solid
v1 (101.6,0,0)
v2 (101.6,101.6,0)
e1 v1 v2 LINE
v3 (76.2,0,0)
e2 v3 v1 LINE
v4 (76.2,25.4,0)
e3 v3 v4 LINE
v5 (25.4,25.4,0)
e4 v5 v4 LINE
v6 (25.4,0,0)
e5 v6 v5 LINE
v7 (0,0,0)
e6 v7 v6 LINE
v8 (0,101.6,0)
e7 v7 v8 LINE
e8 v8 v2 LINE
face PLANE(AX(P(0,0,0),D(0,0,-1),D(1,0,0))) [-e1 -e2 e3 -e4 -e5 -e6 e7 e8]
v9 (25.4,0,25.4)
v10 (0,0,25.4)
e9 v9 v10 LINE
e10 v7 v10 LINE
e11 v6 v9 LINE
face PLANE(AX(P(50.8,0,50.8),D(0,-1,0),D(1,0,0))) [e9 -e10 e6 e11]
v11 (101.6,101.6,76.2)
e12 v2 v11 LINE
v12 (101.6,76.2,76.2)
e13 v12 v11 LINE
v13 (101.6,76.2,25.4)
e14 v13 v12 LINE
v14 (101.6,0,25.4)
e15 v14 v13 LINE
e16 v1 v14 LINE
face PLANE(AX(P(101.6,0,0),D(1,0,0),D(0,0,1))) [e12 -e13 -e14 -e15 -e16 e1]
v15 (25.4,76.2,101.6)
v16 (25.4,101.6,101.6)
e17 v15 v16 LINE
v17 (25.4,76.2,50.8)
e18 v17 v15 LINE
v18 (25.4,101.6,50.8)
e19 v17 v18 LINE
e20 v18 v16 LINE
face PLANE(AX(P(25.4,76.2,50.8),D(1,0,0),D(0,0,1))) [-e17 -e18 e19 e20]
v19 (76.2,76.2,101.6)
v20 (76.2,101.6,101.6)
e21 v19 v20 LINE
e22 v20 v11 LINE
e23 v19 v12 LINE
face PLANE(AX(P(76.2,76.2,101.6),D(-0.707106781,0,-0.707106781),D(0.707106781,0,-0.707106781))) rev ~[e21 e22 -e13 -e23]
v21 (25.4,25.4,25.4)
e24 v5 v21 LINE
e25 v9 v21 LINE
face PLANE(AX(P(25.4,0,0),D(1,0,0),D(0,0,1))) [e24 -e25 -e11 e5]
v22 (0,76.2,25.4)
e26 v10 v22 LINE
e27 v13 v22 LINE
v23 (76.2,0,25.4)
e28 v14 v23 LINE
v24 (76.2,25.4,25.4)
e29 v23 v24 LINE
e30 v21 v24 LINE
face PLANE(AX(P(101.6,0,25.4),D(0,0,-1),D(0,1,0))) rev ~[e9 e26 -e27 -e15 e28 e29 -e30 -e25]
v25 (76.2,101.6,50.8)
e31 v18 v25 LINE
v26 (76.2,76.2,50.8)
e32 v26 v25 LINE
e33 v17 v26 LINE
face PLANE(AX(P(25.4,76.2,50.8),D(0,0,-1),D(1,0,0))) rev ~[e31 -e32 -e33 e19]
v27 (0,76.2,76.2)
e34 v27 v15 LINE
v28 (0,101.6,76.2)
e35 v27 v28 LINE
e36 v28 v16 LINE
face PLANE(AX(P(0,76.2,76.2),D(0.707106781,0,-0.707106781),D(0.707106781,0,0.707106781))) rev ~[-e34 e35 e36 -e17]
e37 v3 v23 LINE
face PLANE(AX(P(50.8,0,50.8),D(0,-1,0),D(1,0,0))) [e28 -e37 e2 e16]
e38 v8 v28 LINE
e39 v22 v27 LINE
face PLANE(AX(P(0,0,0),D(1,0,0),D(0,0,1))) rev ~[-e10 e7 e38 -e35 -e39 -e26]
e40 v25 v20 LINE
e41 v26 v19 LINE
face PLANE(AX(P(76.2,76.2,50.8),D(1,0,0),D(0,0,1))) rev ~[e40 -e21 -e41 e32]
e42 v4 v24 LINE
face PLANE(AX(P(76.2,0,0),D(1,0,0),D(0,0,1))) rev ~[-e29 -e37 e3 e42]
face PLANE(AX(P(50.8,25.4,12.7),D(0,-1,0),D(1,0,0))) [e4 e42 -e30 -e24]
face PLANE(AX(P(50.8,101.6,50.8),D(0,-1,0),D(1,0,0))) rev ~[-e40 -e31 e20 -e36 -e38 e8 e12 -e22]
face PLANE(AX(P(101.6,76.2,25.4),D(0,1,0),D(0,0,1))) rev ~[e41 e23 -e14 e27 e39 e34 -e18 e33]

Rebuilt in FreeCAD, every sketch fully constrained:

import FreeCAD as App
import Part
import Sketcher
Q = App.Units.Quantity

doc = App.newDocument("Part")
body = doc.addObject("PartDesign::Body", "Body")

# Sketch on XZ plane
sketch1 = body.newObject("Sketcher::SketchObject", "Sketch")
sketch1.AttachmentSupport = (doc.getObject("XZ_Plane"), [""])
sketch1.MapMode = "FlatFace"
sketch1.addGeometry(Part.LineSegment(App.Vector(0, 102, 0), App.Vector(0, 0, 0)), False)
sketch1.addGeometry(Part.LineSegment(App.Vector(0, 0, 0), App.Vector(102, 0, 0)), False)
sketch1.addGeometry(Part.LineSegment(App.Vector(102, 0, 0), App.Vector(102, 102, 0)), False)
sketch1.addGeometry(Part.LineSegment(App.Vector(102, 102, 0), App.Vector(0, 102, 0)), False)
sketch1.addConstraint(Sketcher.Constraint("Coincident", 0, 2, 1, 1))
sketch1.addConstraint(Sketcher.Constraint("Coincident", 1, 2, 2, 1))
sketch1.addConstraint(Sketcher.Constraint("Coincident", 2, 2, 3, 1))
sketch1.addConstraint(Sketcher.Constraint("Coincident", 3, 2, 0, 1))
sketch1.addConstraint(Sketcher.Constraint("Vertical", 0))
sketch1.addConstraint(Sketcher.Constraint("Horizontal", 1))
sketch1.addConstraint(Sketcher.Constraint("Vertical", 2))
sketch1.addConstraint(Sketcher.Constraint("Horizontal", 3))
sketch1.addConstraint(Sketcher.Constraint("Coincident", 0, 2, -1, 1))
sketch1.addConstraint(Sketcher.Constraint("Equal", 3, 0))
sketch1.addConstraint(Sketcher.Constraint("DistanceX", 1, 1, 1, 2, Q("4 in")))
pad1 = body.newObject("PartDesign::Pad", "Pad")
pad1.Profile = sketch1
pad1.Length = Q("4 in")
pad1.Reversed = True

# Sketch on YZ plane
sketch2 = body.newObject("Sketcher::SketchObject", "Sketch001")
sketch2.AttachmentSupport = (doc.getObject("YZ_Plane"), [""])
sketch2.MapMode = "FlatFace"
sketch2.AttachmentOffset = App.Placement(App.Vector(0, 0, 4 * 25.4), App.Rotation())
sketch2.addGeometry(Part.LineSegment(App.Vector(0, 102, 0), App.Vector(0, 25, 0)), False)
sketch2.addGeometry(Part.LineSegment(App.Vector(0, 25, 0), App.Vector(76, 25, 0)), False)
sketch2.addGeometry(Part.LineSegment(App.Vector(76, 25, 0), App.Vector(76, 102, 0)), False)
sketch2.addGeometry(Part.LineSegment(App.Vector(76, 102, 0), App.Vector(0, 102, 0)), False)
sketch2.addConstraint(Sketcher.Constraint("Coincident", 0, 2, 1, 1))
sketch2.addConstraint(Sketcher.Constraint("Coincident", 1, 2, 2, 1))
sketch2.addConstraint(Sketcher.Constraint("Coincident", 2, 2, 3, 1))
sketch2.addConstraint(Sketcher.Constraint("Coincident", 3, 2, 0, 1))
sketch2.addConstraint(Sketcher.Constraint("Vertical", 0))
sketch2.addConstraint(Sketcher.Constraint("Horizontal", 1))
sketch2.addConstraint(Sketcher.Constraint("Vertical", 2))
sketch2.addConstraint(Sketcher.Constraint("Horizontal", 3))
sketch2.addConstraint(Sketcher.Constraint("PointOnObject", 0, 2, -2))
sketch2.addConstraint(Sketcher.Constraint("Equal", 3, 0))
sketch2.addConstraint(Sketcher.Constraint("DistanceX", 1, 1, 1, 2, Q("3 in")))
sketch2.addConstraint(Sketcher.Constraint("DistanceY", -1, 1, 0, 2, Q("1 in")))
pocket1 = body.newObject("PartDesign::Pocket", "Pocket")
pocket1.Profile = sketch2
pocket1.Length = Q("4 in")

# Sketch on XZ plane
sketch3 = body.newObject("Sketcher::SketchObject", "Sketch002")
sketch3.AttachmentSupport = (doc.getObject("XZ_Plane"), [""])
sketch3.MapMode = "FlatFace"
sketch3.addGeometry(Part.LineSegment(App.Vector(25, 25, 0), App.Vector(25, 0, 0)), False)
sketch3.addGeometry(Part.LineSegment(App.Vector(25, 0, 0), App.Vector(76, 0, 0)), False)
sketch3.addGeometry(Part.LineSegment(App.Vector(76, 0, 0), App.Vector(76, 25, 0)), False)
sketch3.addGeometry(Part.LineSegment(App.Vector(76, 25, 0), App.Vector(25, 25, 0)), False)
sketch3.addConstraint(Sketcher.Constraint("Coincident", 0, 2, 1, 1))
sketch3.addConstraint(Sketcher.Constraint("Coincident", 1, 2, 2, 1))
sketch3.addConstraint(Sketcher.Constraint("Coincident", 2, 2, 3, 1))
sketch3.addConstraint(Sketcher.Constraint("Coincident", 3, 2, 0, 1))
sketch3.addConstraint(Sketcher.Constraint("Vertical", 0))
sketch3.addConstraint(Sketcher.Constraint("Horizontal", 1))
sketch3.addConstraint(Sketcher.Constraint("Vertical", 2))
sketch3.addConstraint(Sketcher.Constraint("Horizontal", 3))
sketch3.addConstraint(Sketcher.Constraint("PointOnObject", 0, 2, -1))
sketch3.addConstraint(Sketcher.Constraint("DistanceX", 1, 1, 1, 2, Q("2 in")))
sketch3.addConstraint(Sketcher.Constraint("DistanceY", 0, 2, 0, 1, Q("1 in")))
sketch3.addConstraint(Sketcher.Constraint("DistanceX", -1, 1, 0, 2, Q("1 in")))
pocket2 = body.newObject("PartDesign::Pocket", "Pocket001")
pocket2.Profile = sketch3
pocket2.Length = Q("1 in")

# Sketch on XZ plane
sketch4 = body.newObject("Sketcher::SketchObject", "Sketch003")
sketch4.AttachmentSupport = (doc.getObject("XZ_Plane"), [""])
sketch4.MapMode = "FlatFace"
sketch4.AttachmentOffset = App.Placement(App.Vector(0, 0, -3 * 25.4), App.Rotation())
sketch4.addGeometry(Part.LineSegment(App.Vector(25, 102, 0), App.Vector(25, 51, 0)), False)
sketch4.addGeometry(Part.LineSegment(App.Vector(25, 51, 0), App.Vector(76, 51, 0)), False)
sketch4.addGeometry(Part.LineSegment(App.Vector(76, 51, 0), App.Vector(76, 102, 0)), False)
sketch4.addGeometry(Part.LineSegment(App.Vector(76, 102, 0), App.Vector(25, 102, 0)), False)
sketch4.addConstraint(Sketcher.Constraint("Coincident", 0, 2, 1, 1))
sketch4.addConstraint(Sketcher.Constraint("Coincident", 1, 2, 2, 1))
sketch4.addConstraint(Sketcher.Constraint("Coincident", 2, 2, 3, 1))
sketch4.addConstraint(Sketcher.Constraint("Coincident", 3, 2, 0, 1))
sketch4.addConstraint(Sketcher.Constraint("Vertical", 0))
sketch4.addConstraint(Sketcher.Constraint("Horizontal", 1))
sketch4.addConstraint(Sketcher.Constraint("Vertical", 2))
sketch4.addConstraint(Sketcher.Constraint("Horizontal", 3))
sketch4.addConstraint(Sketcher.Constraint("Equal", 3, 0))
sketch4.addConstraint(Sketcher.Constraint("DistanceX", 1, 1, 1, 2, Q("2 in")))
sketch4.addConstraint(Sketcher.Constraint("DistanceX", -1, 1, 0, 2, Q("1 in")))
sketch4.addConstraint(Sketcher.Constraint("DistanceY", -1, 1, 0, 2, Q("2 in")))
pocket3 = body.newObject("PartDesign::Pocket", "Pocket002")
pocket3.Profile = sketch4
pocket3.Length = Q("1 in")

# Sketch on XZ plane
sketch5 = body.newObject("Sketcher::SketchObject", "Sketch004")
sketch5.AttachmentSupport = (doc.getObject("XZ_Plane"), [""])
sketch5.MapMode = "FlatFace"
sketch5.AttachmentOffset = App.Placement(App.Vector(0, 0, -3 * 25.4), App.Rotation())
sketch5.addGeometry(Part.LineSegment(App.Vector(0, 76, 0), App.Vector(25, 102, 0)), False)
sketch5.addGeometry(Part.LineSegment(App.Vector(25, 102, 0), App.Vector(0, 102, 0)), False)
sketch5.addGeometry(Part.LineSegment(App.Vector(0, 102, 0), App.Vector(0, 76, 0)), False)
sketch5.addConstraint(Sketcher.Constraint("Coincident", 0, 2, 1, 1))
sketch5.addConstraint(Sketcher.Constraint("Coincident", 1, 2, 2, 1))
sketch5.addConstraint(Sketcher.Constraint("Coincident", 2, 2, 0, 1))
sketch5.addConstraint(Sketcher.Constraint("Horizontal", 1))
sketch5.addConstraint(Sketcher.Constraint("Vertical", 2))
sketch5.addConstraint(Sketcher.Constraint("PointOnObject", 1, 2, -2))
sketch5.addConstraint(Sketcher.Constraint("Equal", 1, 2))
sketch5.addConstraint(Sketcher.Constraint("DistanceX", 1, 2, 1, 1, Q("1 in")))
sketch5.addConstraint(Sketcher.Constraint("DistanceY", -1, 1, 0, 2, Q("4 in")))
pocket4 = body.newObject("PartDesign::Pocket", "Pocket003")
pocket4.Profile = sketch5
pocket4.Length = Q("1 in")

# Sketch on XZ plane
sketch6 = body.newObject("Sketcher::SketchObject", "Sketch005")
sketch6.AttachmentSupport = (doc.getObject("XZ_Plane"), [""])
sketch6.MapMode = "FlatFace"
sketch6.AttachmentOffset = App.Placement(App.Vector(0, 0, -3 * 25.4), App.Rotation())
sketch6.addGeometry(Part.LineSegment(App.Vector(102, 102, 0), App.Vector(76, 102, 0)), False)
sketch6.addGeometry(Part.LineSegment(App.Vector(76, 102, 0), App.Vector(102, 76, 0)), False)
sketch6.addGeometry(Part.LineSegment(App.Vector(102, 76, 0), App.Vector(102, 102, 0)), False)
sketch6.addConstraint(Sketcher.Constraint("Coincident", 0, 2, 1, 1))
sketch6.addConstraint(Sketcher.Constraint("Coincident", 1, 2, 2, 1))
sketch6.addConstraint(Sketcher.Constraint("Coincident", 2, 2, 0, 1))
sketch6.addConstraint(Sketcher.Constraint("Horizontal", 0))
sketch6.addConstraint(Sketcher.Constraint("Vertical", 2))
sketch6.addConstraint(Sketcher.Constraint("Equal", 0, 2))
sketch6.addConstraint(Sketcher.Constraint("DistanceX", 0, 2, 0, 1, Q("1 in")))
sketch6.addConstraint(Sketcher.Constraint("DistanceX", -1, 1, 0, 2, Q("3 in")))
sketch6.addConstraint(Sketcher.Constraint("DistanceY", -1, 1, 0, 2, Q("4 in")))
pocket5 = body.newObject("PartDesign::Pocket", "Pocket004")
pocket5.Profile = sketch6
pocket5.Length = Q("1 in")

doc.recompute()
